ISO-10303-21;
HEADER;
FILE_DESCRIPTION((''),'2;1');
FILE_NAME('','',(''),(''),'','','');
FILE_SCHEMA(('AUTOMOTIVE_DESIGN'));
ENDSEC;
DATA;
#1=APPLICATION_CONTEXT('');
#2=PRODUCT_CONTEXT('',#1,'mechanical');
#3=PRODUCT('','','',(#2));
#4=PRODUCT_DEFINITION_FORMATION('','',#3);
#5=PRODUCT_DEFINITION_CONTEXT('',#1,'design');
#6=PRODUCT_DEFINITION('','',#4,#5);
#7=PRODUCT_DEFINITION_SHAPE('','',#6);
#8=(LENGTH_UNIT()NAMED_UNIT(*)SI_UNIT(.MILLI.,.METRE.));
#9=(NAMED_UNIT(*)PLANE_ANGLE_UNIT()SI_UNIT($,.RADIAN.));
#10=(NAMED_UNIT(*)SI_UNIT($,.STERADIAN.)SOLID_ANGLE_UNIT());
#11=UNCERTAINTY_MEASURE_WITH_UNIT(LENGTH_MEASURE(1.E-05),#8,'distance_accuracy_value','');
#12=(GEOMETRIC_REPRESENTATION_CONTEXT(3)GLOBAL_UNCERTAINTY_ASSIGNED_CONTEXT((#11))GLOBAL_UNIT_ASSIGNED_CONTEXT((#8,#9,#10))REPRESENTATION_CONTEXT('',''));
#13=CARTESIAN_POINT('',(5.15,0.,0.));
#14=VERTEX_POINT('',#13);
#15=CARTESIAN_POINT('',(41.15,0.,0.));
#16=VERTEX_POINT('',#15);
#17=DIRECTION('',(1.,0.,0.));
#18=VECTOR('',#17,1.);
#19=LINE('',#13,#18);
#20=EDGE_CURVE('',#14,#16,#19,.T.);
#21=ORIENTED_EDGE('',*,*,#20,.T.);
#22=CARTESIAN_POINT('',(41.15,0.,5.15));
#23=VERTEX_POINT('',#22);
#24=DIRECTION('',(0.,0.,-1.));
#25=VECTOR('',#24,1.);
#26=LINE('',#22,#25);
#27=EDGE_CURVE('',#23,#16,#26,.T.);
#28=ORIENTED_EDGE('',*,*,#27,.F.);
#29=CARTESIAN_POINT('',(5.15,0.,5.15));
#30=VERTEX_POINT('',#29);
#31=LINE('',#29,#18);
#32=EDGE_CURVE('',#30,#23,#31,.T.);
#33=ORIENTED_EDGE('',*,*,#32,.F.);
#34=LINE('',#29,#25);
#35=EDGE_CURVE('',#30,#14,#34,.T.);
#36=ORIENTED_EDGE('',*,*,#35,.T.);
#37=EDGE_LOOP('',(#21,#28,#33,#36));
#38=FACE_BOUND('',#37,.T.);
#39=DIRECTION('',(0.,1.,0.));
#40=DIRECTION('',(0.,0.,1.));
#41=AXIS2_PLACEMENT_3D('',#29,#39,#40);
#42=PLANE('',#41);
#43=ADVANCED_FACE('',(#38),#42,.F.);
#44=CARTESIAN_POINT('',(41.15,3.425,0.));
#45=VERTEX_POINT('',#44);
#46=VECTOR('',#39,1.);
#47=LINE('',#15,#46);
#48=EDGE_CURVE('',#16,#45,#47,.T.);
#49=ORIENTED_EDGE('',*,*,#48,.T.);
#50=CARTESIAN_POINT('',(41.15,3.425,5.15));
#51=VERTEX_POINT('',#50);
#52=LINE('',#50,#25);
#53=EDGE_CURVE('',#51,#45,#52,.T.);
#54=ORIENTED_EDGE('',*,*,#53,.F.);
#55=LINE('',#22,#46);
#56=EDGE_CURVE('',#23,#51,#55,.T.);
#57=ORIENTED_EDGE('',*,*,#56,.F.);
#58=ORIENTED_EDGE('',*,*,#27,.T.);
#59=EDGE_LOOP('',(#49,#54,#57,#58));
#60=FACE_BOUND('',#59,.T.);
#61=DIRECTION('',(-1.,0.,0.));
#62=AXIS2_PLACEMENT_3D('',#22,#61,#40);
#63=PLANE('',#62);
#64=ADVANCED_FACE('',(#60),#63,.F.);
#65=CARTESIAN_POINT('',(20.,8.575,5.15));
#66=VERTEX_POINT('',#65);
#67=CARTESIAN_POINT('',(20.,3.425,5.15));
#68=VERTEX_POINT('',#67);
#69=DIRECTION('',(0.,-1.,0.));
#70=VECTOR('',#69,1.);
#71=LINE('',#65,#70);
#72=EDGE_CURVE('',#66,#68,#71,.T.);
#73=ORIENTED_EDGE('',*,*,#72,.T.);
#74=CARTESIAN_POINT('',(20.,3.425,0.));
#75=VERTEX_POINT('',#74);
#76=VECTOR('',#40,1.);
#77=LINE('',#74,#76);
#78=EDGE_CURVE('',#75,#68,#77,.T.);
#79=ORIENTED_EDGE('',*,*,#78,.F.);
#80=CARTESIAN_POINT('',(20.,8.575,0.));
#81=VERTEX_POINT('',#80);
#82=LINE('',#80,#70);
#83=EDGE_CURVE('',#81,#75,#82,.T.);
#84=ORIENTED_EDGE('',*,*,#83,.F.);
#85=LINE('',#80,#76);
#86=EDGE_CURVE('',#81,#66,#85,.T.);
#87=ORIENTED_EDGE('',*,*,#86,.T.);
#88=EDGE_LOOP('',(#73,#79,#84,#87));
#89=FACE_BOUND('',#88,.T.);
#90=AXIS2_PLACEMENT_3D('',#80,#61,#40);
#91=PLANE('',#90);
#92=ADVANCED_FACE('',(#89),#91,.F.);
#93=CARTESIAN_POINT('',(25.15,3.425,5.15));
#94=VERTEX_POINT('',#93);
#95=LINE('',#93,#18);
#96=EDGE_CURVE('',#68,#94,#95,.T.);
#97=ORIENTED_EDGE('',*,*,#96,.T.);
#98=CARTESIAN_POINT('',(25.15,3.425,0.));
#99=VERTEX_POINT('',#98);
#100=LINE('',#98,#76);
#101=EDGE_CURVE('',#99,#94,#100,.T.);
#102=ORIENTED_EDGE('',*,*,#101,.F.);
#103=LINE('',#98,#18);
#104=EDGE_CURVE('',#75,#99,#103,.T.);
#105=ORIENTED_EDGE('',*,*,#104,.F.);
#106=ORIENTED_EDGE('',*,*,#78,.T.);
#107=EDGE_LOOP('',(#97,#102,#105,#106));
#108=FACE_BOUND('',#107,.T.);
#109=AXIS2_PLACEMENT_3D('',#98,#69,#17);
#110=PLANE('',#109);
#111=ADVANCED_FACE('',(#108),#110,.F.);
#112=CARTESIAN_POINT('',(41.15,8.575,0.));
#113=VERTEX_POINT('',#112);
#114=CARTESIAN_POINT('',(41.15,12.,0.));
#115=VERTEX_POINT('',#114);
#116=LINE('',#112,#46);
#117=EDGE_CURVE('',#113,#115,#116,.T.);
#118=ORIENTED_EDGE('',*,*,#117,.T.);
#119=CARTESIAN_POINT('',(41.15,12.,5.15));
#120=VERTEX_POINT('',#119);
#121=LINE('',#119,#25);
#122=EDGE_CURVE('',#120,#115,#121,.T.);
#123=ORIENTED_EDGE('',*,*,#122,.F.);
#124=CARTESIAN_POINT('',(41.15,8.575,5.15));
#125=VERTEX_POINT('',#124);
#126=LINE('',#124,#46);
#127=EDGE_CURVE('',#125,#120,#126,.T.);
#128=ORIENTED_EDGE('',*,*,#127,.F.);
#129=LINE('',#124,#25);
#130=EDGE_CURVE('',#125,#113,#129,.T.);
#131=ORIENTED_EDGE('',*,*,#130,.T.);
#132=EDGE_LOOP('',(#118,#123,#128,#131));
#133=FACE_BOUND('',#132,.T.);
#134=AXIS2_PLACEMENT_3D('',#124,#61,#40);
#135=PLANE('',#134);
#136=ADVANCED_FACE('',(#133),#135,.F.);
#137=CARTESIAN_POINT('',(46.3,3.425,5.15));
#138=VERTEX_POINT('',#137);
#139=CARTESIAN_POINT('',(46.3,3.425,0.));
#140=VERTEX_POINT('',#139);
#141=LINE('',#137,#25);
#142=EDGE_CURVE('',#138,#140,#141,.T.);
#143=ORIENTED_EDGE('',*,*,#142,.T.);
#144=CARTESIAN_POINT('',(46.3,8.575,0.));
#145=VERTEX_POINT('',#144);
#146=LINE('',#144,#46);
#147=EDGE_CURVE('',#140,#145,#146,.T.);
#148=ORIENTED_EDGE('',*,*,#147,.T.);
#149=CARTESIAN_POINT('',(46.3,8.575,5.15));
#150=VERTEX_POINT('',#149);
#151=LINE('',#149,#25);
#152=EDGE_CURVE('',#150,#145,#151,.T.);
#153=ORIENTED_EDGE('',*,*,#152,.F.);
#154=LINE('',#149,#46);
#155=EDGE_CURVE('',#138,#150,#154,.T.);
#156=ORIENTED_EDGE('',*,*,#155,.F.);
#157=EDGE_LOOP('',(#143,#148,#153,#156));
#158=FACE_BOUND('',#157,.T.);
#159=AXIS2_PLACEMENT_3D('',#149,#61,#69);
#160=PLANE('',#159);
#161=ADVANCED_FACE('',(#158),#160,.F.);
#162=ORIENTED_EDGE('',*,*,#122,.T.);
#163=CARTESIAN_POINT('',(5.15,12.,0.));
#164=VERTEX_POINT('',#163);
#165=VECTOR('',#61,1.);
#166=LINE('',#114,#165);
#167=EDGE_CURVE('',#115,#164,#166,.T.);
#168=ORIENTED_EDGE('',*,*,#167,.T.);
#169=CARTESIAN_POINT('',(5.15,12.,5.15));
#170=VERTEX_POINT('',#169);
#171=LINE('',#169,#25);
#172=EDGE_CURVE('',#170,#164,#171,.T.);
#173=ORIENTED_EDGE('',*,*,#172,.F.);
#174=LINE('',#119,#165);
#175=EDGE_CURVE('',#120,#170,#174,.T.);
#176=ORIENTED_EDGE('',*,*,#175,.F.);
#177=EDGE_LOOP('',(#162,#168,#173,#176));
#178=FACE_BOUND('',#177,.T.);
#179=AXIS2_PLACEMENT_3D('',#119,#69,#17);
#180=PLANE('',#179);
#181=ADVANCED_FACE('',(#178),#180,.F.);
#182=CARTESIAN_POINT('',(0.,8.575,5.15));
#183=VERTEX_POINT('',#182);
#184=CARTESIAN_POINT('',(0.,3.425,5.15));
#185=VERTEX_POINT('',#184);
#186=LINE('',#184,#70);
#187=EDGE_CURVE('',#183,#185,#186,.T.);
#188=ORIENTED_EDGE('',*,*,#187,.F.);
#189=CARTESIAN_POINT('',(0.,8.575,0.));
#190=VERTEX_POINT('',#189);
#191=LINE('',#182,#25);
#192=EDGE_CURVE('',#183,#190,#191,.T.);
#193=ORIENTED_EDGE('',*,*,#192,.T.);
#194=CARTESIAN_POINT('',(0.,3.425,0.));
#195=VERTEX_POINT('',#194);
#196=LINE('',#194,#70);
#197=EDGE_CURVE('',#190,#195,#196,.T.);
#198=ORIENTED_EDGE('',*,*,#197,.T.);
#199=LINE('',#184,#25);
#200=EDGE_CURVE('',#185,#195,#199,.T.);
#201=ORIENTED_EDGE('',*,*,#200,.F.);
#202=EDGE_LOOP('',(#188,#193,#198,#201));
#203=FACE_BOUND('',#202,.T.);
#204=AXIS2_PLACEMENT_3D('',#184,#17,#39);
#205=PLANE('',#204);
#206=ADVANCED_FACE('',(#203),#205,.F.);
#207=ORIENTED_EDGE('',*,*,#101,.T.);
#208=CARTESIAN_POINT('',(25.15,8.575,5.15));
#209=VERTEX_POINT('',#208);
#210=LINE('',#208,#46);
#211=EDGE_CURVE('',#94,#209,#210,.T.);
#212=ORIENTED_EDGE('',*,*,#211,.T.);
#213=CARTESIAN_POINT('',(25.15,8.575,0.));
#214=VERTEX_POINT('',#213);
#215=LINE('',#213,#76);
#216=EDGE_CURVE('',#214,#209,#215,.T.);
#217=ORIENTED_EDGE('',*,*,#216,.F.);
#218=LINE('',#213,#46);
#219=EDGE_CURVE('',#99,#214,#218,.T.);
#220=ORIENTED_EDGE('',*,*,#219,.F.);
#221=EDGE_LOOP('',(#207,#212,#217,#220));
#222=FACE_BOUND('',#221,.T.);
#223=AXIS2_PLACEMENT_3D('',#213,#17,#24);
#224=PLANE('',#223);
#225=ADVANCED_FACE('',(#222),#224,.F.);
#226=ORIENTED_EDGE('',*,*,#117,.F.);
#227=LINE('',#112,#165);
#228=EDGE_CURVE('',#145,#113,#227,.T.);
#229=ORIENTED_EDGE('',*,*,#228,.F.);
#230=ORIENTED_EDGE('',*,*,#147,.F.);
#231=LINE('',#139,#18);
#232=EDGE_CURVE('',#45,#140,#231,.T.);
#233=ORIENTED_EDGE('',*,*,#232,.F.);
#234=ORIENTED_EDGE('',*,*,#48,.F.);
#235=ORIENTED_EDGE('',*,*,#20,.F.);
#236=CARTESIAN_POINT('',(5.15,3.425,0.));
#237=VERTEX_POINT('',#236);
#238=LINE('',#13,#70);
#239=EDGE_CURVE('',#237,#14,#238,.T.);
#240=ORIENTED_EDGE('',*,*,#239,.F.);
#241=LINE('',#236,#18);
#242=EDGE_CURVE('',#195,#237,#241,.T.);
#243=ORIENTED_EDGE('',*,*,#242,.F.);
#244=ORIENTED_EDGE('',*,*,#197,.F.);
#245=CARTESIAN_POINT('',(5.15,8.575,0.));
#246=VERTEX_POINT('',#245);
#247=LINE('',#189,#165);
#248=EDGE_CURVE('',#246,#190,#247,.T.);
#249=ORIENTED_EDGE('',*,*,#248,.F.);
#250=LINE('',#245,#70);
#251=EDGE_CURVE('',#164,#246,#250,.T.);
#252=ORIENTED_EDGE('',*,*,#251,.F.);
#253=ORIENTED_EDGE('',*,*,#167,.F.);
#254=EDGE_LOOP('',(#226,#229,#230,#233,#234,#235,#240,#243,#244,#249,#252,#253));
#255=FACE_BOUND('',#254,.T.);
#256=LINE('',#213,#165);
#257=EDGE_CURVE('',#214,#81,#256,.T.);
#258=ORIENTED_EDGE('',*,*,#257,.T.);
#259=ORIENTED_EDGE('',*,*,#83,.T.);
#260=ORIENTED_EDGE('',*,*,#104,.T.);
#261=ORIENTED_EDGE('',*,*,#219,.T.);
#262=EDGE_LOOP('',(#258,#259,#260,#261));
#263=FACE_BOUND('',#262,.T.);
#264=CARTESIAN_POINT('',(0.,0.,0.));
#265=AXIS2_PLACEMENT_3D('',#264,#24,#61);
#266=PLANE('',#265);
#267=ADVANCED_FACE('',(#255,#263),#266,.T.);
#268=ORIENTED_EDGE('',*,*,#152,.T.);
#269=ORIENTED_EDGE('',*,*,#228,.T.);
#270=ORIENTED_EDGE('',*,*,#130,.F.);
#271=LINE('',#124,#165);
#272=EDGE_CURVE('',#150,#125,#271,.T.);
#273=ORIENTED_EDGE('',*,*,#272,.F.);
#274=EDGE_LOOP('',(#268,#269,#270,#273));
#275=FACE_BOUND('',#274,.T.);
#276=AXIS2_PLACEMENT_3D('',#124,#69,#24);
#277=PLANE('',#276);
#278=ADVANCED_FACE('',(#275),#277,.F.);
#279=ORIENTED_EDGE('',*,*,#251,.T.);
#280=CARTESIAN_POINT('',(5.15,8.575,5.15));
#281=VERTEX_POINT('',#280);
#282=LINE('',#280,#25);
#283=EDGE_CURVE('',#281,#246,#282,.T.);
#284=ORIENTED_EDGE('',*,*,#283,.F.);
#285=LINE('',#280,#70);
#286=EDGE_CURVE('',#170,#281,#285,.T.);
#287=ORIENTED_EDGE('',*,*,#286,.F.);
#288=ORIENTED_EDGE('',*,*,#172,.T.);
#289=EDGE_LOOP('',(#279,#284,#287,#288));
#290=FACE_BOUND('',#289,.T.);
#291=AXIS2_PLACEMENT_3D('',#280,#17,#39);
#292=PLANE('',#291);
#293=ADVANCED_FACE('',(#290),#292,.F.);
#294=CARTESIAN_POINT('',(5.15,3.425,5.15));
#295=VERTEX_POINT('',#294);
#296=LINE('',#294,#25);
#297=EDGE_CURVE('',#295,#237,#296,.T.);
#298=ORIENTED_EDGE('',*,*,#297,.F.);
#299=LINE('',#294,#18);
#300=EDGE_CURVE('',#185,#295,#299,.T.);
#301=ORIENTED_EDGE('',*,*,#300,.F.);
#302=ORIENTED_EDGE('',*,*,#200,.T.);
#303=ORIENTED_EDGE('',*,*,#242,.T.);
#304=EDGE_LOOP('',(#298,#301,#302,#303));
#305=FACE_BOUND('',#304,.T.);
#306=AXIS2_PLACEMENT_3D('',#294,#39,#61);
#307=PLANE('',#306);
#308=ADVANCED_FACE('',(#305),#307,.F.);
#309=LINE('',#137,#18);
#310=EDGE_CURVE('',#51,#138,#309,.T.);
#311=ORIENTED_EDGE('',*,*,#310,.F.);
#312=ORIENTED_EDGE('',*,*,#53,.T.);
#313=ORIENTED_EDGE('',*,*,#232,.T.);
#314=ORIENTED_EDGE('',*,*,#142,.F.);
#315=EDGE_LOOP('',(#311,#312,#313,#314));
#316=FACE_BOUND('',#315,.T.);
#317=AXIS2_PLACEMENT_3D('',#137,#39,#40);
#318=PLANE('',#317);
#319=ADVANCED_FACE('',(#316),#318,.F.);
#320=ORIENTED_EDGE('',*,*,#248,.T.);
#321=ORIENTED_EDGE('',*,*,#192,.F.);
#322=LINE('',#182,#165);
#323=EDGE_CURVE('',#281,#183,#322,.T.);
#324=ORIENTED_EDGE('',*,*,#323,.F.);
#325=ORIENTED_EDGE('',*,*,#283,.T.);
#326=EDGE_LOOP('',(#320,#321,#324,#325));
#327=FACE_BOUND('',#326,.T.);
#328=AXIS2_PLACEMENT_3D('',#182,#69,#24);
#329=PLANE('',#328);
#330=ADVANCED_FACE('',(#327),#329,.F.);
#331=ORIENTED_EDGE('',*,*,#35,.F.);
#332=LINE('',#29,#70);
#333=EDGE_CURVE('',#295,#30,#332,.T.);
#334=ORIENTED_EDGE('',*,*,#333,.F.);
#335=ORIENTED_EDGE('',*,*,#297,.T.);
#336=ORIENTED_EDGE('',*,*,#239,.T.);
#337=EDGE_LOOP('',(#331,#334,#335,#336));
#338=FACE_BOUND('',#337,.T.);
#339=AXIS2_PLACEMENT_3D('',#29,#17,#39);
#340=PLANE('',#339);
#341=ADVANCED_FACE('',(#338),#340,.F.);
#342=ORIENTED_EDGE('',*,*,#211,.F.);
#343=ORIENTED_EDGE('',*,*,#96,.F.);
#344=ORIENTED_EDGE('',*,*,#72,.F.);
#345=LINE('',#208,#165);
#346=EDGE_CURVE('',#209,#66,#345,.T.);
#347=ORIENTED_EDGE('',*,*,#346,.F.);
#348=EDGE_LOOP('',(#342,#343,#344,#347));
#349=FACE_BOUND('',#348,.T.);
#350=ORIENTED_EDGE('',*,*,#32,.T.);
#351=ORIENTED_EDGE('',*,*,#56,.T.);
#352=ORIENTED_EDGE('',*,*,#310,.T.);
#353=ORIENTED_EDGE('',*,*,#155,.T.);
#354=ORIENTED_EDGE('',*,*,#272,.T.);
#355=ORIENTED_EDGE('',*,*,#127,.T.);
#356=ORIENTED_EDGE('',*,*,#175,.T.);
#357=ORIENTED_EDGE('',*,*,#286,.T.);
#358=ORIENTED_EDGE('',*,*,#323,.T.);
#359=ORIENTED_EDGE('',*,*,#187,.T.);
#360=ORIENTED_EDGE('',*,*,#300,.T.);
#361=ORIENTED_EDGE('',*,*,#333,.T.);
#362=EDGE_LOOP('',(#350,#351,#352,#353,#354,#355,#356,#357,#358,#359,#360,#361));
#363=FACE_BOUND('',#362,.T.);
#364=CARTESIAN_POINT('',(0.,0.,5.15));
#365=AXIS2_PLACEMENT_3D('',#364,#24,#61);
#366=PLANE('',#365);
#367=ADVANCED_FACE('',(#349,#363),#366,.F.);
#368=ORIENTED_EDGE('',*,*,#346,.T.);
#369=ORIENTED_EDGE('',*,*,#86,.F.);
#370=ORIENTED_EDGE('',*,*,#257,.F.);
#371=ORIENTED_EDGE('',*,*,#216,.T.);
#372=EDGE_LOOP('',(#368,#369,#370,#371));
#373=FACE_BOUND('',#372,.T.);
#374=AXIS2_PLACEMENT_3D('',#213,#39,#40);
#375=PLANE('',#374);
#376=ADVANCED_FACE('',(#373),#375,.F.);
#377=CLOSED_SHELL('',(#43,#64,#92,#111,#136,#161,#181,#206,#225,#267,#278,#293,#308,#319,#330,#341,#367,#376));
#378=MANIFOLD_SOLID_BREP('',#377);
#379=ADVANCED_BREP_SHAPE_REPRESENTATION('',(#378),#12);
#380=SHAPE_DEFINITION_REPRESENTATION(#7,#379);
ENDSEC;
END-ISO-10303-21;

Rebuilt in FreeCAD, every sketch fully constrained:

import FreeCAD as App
import Part
import Sketcher
from FreeCAD import Vector
Q = App.Units.Quantity

doc = App.newDocument("Part")
body = doc.addObject("PartDesign::Body", "Body")

# Sketch on XY plane
sketch1 = doc.addObject("Sketcher::SketchObject", "Sketch")
body.addObject(sketch1)
sketch1.AttachmentSupport = (doc.XY_Plane, [""])
sketch1.MapMode = "FlatFace"
sketch1.addGeometry(Part.LineSegment(Vector(0, 8.575, 0), Vector(0, 3.425, 0)), False)
sketch1.addGeometry(Part.LineSegment(Vector(0, 3.425, 0), Vector(5.15, 3.425, 0)), False)
sketch1.addGeometry(Part.LineSegment(Vector(5.15, 3.425, 0), Vector(5.15, 0, 0)), False)
sketch1.addGeometry(Part.LineSegment(Vector(5.15, 0, 0), Vector(41.15, 0, 0)), False)
sketch1.addGeometry(Part.LineSegment(Vector(41.15, 0, 0), Vector(41.15, 3.425, 0)), False)
sketch1.addGeometry(Part.LineSegment(Vector(41.15, 3.425, 0), Vector(46.3, 3.425, 0)), False)
sketch1.addGeometry(Part.LineSegment(Vector(46.3, 3.425, 0), Vector(46.3, 8.575, 0)), False)
sketch1.addGeometry(Part.LineSegment(Vector(46.3, 8.575, 0), Vector(41.15, 8.575, 0)), False)
sketch1.addGeometry(Part.LineSegment(Vector(41.15, 8.575, 0), Vector(41.15, 12, 0)), False)
sketch1.addGeometry(Part.LineSegment(Vector(41.15, 12, 0), Vector(5.15, 12, 0)), False)
sketch1.addGeometry(Part.LineSegment(Vector(5.15, 12, 0), Vector(5.15, 8.575, 0)), False)
sketch1.addGeometry(Part.LineSegment(Vector(5.15, 8.575, 0), Vector(0, 8.575, 0)), False)
sketch1.addConstraint(Sketcher.Constraint("Coincident", 0, 2, 1, 1))
sketch1.addConstraint(Sketcher.Constraint("Coincident", 1, 2, 2, 1))
sketch1.addConstraint(Sketcher.Constraint("Coincident", 2, 2, 3, 1))
sketch1.addConstraint(Sketcher.Constraint("Coincident", 3, 2, 4, 1))
sketch1.addConstraint(Sketcher.Constraint("Coincident", 4, 2, 5, 1))
sketch1.addConstraint(Sketcher.Constraint("Coincident", 5, 2, 6, 1))
sketch1.addConstraint(Sketcher.Constraint("Coincident", 6, 2, 7, 1))
sketch1.addConstraint(Sketcher.Constraint("Coincident", 7, 2, 8, 1))
sketch1.addConstraint(Sketcher.Constraint("Coincident", 8, 2, 9, 1))
sketch1.addConstraint(Sketcher.Constraint("Coincident", 9, 2, 10, 1))
sketch1.addConstraint(Sketcher.Constraint("Coincident", 10, 2, 11, 1))
sketch1.addConstraint(Sketcher.Constraint("Coincident", 11, 2, 0, 1))
sketch1.addConstraint(Sketcher.Constraint("Vertical", 0))
sketch1.addConstraint(Sketcher.Constraint("Horizontal", 1))
sketch1.addConstraint(Sketcher.Constraint("Vertical", 2))
sketch1.addConstraint(Sketcher.Constraint("Horizontal", 3))
sketch1.addConstraint(Sketcher.Constraint("Vertical", 4))
sketch1.addConstraint(Sketcher.Constraint("Horizontal", 5))
sketch1.addConstraint(Sketcher.Constraint("Vertical", 6))
sketch1.addConstraint(Sketcher.Constraint("Horizontal", 7))
sketch1.addConstraint(Sketcher.Constraint("Vertical", 8))
sketch1.addConstraint(Sketcher.Constraint("Horizontal", 9))
sketch1.addConstraint(Sketcher.Constraint("Vertical", 10))
sketch1.addConstraint(Sketcher.Constraint("Horizontal", 11))
sketch1.addConstraint(Sketcher.Constraint("PointOnObject", 0, 2, -2))
sketch1.addConstraint(Sketcher.Constraint("PointOnObject", 2, 2, -1))
sketch1.addConstraint(Sketcher.Constraint("Horizontal", 1, 2, 4, 2))
sketch1.addConstraint(Sketcher.Constraint("Horizontal", 7, 2, 10, 2))
sketch1.addConstraint(Sketcher.Constraint("Vertical", 4, 2, 7, 2))
sketch1.addConstraint(Sketcher.Constraint("Vertical", 2, 2, 9, 2))
sketch1.addConstraint(Sketcher.Constraint("Equal", 1, 5))
sketch1.addConstraint(Sketcher.Constraint("Equal", 11, 0))
sketch1.addConstraint(Sketcher.Constraint("Equal", 4, 8))
sketch1.addConstraint(Sketcher.Constraint("DistanceX", 3, 1, 3, 2, Q("36 mm")))
sketch1.addConstraint(Sketcher.Constraint("DistanceY", -1, 1, 8, 2, Q("12 mm")))
sketch1.addConstraint(Sketcher.Constraint("DistanceX", 1, 1, 1, 2, Q("5.15 mm")))
pad1 = doc.addObject("PartDesign::Pad", "Pad")
body.addObject(pad1)
pad1.Profile = sketch1
pad1.Length = 5.15

# Sketch on XY plane
sketch2 = doc.addObject("Sketcher::SketchObject", "Sketch001")
body.addObject(sketch2)
sketch2.AttachmentSupport = (doc.XY_Plane, [""])
sketch2.MapMode = "FlatFace"
sketch2.AttachmentOffset = App.Placement(Vector(0, 0, 5.15), App.Rotation())
sketch2.addGeometry(Part.LineSegment(Vector(20, 8.575, 0), Vector(20, 3.425, 0)), False)
sketch2.addGeometry(Part.LineSegment(Vector(20, 3.425, 0), Vector(25.15, 3.425, 0)), False)
sketch2.addGeometry(Part.LineSegment(Vector(25.15, 3.425, 0), Vector(25.15, 8.575, 0)), False)
sketch2.addGeometry(Part.LineSegment(Vector(25.15, 8.575, 0), Vector(20, 8.575, 0)), False)
sketch2.addConstraint(Sketcher.Constraint("Coincident", 0, 2, 1, 1))
sketch2.addConstraint(Sketcher.Constraint("Coincident", 1, 2, 2, 1))
sketch2.addConstraint(Sketcher.Constraint("Coincident", 2, 2, 3, 1))
sketch2.addConstraint(Sketcher.Constraint("Coincident", 3, 2, 0, 1))
sketch2.addConstraint(Sketcher.Constraint("Vertical", 0))
sketch2.addConstraint(Sketcher.Constraint("Horizontal", 1))
sketch2.addConstraint(Sketcher.Constraint("Vertical", 2))
sketch2.addConstraint(Sketcher.Constraint("Horizontal", 3))
sketch2.addConstraint(Sketcher.Constraint("Equal", 3, 0))
sketch2.addConstraint(Sketcher.Constraint("DistanceX", -1, 1, 0, 2, Q("20 mm")))
sketch2.addConstraint(Sketcher.Constraint("DistanceX", 1, 1, 1, 2, Q("5.15 mm")))
sketch2.addConstraint(Sketcher.Constraint("DistanceY", -1, 1, 0, 2, Q("3.425 mm")))
pocket1 = doc.addObject("PartDesign::Pocket", "Pocket")
body.addObject(pocket1)
pocket1.Profile = sketch2
pocket1.Type = "ThroughAll"

doc.recompute()
